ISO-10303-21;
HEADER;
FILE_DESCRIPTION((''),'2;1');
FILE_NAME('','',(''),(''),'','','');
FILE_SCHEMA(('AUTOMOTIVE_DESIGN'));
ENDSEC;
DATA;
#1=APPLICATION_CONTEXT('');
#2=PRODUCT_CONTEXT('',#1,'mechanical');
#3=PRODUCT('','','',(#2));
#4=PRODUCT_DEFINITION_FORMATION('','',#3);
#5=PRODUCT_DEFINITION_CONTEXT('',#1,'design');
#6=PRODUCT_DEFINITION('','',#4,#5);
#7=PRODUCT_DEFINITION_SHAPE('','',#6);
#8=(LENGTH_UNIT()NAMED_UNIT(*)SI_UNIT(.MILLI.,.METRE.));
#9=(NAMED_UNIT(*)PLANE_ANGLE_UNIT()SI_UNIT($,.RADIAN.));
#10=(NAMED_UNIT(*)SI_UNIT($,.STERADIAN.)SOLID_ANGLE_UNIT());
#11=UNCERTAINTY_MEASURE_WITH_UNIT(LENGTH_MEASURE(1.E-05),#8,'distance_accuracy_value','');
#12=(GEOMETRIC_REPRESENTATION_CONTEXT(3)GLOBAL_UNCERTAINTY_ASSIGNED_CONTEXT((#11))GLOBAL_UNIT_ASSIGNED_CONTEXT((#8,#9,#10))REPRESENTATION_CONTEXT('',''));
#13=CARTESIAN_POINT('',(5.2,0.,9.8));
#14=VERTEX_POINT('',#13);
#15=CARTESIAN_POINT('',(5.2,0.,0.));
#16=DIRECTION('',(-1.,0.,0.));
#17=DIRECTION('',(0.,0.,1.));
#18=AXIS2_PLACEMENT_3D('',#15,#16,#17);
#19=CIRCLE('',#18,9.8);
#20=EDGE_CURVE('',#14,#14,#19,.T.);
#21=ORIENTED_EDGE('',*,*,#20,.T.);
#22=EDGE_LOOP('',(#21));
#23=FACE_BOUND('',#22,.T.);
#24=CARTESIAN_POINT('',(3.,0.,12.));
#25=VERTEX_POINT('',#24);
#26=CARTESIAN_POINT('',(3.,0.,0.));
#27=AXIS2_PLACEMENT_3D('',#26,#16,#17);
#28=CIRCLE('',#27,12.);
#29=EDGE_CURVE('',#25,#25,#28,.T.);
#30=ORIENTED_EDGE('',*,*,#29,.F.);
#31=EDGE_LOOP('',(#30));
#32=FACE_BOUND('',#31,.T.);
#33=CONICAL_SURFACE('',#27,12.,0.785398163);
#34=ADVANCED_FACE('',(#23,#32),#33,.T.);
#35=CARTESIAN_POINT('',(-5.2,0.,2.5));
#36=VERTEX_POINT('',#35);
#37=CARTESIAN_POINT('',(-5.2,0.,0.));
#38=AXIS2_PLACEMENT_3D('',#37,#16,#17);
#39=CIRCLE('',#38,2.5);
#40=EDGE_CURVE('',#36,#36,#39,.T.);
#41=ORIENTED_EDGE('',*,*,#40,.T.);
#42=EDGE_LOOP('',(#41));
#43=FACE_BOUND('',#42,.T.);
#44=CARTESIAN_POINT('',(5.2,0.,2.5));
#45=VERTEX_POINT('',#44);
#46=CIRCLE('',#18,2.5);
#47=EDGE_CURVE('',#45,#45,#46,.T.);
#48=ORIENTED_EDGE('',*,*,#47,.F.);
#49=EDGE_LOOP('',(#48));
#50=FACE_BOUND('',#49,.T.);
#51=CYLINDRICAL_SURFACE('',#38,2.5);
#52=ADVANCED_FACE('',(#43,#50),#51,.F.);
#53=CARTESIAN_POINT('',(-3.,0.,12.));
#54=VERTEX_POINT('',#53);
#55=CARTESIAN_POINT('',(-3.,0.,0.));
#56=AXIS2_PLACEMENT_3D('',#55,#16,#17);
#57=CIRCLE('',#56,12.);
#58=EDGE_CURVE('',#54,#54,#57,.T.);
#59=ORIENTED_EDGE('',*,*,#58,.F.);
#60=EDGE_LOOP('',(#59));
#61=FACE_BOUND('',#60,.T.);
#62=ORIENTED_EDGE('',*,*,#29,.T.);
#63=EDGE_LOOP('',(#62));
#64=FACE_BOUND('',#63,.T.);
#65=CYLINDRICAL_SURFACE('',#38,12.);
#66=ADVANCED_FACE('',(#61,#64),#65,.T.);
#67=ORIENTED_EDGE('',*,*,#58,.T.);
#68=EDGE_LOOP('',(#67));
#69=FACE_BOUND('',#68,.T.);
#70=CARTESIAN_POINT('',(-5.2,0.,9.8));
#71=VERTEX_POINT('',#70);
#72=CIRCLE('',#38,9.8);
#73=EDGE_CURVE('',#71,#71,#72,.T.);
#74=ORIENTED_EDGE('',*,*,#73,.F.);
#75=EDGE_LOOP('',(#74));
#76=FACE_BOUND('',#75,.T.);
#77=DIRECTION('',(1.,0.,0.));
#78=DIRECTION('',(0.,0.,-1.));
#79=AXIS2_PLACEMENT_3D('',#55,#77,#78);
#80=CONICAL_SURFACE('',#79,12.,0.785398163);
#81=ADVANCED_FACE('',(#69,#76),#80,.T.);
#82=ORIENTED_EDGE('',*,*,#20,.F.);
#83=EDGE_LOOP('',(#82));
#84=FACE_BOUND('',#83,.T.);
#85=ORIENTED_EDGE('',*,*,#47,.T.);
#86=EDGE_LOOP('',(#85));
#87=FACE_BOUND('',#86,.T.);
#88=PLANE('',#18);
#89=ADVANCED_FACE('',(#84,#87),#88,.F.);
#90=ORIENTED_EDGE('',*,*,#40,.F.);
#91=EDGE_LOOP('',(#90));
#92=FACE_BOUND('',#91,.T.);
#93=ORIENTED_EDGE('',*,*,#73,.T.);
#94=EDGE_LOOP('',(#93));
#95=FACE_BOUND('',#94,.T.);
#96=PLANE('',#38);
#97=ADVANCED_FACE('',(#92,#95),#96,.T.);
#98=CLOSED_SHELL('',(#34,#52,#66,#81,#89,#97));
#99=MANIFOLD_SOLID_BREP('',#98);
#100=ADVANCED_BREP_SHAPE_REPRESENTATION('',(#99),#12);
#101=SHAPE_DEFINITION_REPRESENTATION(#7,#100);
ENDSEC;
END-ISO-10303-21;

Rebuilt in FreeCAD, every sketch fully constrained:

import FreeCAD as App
import Part
import Sketcher
from FreeCAD import Vector


def add_polygon(sketch, points):
    """Adds a closed chain of lines whose ends are joined by coincident constraints."""
    first, n = sketch.GeometryCount, len(points)
    for a, b in zip(points, points[1:] + points[:1]):
        sketch.addGeometry(Part.LineSegment(App.Vector(*a, 0), App.Vector(*b, 0)), False)
    for i in range(n):
        sketch.addConstraint(Sketcher.Constraint("Coincident", first + i, 2, first + (i + 1) % n, 1))

doc = App.newDocument("Part")
body = doc.addObject("PartDesign::Body", "Body")

sketch1 = body.newObject("Sketcher::SketchObject", "Sketch")
sketch1.AttachmentSupport = (doc.getObject("XY_Plane"), [""])
sketch1.MapMode = "FlatFace"
add_polygon(sketch1, [(-5.2, 2.5), (5.2, 2.5), (5.2, 9.8), (3, 12), (-3, 12), (-5.2, 9.8)])
sketch1.addConstraint(Sketcher.Constraint("Horizontal", 0))
sketch1.addConstraint(Sketcher.Constraint("Vertical", 1))
sketch1.addConstraint(Sketcher.Constraint("Horizontal", 3))
sketch1.addConstraint(Sketcher.Constraint("Vertical", 5))
sketch1.addConstraint(Sketcher.Constraint("Symmetric", 1, 2, 4, 2, -2))
sketch1.addConstraint(Sketcher.Constraint("Perpendicular", 2, 4))
sketch1.addConstraint(Sketcher.Constraint("Equal", 2, 4))
sketch1.addConstraint(Sketcher.Constraint("DistanceX", 3, 2, 3, 1, 6.0))
sketch1.addConstraint(Sketcher.Constraint("DistanceX", 0, 1, 0, 2, 10.4))
sketch1.addConstraint(Sketcher.Constraint("DistanceY", 1, 1, 1, 2, 7.3))
sketch1.addConstraint(Sketcher.Constraint("DistanceY", -1, 1, 2, 2, 12.0))
revolution = body.newObject("PartDesign::Revolution", "Revolution")
revolution.Profile = sketch1
revolution.ReferenceAxis = (sketch1, ["H_Axis"])
revolution.Angle = 360

doc.recompute()
